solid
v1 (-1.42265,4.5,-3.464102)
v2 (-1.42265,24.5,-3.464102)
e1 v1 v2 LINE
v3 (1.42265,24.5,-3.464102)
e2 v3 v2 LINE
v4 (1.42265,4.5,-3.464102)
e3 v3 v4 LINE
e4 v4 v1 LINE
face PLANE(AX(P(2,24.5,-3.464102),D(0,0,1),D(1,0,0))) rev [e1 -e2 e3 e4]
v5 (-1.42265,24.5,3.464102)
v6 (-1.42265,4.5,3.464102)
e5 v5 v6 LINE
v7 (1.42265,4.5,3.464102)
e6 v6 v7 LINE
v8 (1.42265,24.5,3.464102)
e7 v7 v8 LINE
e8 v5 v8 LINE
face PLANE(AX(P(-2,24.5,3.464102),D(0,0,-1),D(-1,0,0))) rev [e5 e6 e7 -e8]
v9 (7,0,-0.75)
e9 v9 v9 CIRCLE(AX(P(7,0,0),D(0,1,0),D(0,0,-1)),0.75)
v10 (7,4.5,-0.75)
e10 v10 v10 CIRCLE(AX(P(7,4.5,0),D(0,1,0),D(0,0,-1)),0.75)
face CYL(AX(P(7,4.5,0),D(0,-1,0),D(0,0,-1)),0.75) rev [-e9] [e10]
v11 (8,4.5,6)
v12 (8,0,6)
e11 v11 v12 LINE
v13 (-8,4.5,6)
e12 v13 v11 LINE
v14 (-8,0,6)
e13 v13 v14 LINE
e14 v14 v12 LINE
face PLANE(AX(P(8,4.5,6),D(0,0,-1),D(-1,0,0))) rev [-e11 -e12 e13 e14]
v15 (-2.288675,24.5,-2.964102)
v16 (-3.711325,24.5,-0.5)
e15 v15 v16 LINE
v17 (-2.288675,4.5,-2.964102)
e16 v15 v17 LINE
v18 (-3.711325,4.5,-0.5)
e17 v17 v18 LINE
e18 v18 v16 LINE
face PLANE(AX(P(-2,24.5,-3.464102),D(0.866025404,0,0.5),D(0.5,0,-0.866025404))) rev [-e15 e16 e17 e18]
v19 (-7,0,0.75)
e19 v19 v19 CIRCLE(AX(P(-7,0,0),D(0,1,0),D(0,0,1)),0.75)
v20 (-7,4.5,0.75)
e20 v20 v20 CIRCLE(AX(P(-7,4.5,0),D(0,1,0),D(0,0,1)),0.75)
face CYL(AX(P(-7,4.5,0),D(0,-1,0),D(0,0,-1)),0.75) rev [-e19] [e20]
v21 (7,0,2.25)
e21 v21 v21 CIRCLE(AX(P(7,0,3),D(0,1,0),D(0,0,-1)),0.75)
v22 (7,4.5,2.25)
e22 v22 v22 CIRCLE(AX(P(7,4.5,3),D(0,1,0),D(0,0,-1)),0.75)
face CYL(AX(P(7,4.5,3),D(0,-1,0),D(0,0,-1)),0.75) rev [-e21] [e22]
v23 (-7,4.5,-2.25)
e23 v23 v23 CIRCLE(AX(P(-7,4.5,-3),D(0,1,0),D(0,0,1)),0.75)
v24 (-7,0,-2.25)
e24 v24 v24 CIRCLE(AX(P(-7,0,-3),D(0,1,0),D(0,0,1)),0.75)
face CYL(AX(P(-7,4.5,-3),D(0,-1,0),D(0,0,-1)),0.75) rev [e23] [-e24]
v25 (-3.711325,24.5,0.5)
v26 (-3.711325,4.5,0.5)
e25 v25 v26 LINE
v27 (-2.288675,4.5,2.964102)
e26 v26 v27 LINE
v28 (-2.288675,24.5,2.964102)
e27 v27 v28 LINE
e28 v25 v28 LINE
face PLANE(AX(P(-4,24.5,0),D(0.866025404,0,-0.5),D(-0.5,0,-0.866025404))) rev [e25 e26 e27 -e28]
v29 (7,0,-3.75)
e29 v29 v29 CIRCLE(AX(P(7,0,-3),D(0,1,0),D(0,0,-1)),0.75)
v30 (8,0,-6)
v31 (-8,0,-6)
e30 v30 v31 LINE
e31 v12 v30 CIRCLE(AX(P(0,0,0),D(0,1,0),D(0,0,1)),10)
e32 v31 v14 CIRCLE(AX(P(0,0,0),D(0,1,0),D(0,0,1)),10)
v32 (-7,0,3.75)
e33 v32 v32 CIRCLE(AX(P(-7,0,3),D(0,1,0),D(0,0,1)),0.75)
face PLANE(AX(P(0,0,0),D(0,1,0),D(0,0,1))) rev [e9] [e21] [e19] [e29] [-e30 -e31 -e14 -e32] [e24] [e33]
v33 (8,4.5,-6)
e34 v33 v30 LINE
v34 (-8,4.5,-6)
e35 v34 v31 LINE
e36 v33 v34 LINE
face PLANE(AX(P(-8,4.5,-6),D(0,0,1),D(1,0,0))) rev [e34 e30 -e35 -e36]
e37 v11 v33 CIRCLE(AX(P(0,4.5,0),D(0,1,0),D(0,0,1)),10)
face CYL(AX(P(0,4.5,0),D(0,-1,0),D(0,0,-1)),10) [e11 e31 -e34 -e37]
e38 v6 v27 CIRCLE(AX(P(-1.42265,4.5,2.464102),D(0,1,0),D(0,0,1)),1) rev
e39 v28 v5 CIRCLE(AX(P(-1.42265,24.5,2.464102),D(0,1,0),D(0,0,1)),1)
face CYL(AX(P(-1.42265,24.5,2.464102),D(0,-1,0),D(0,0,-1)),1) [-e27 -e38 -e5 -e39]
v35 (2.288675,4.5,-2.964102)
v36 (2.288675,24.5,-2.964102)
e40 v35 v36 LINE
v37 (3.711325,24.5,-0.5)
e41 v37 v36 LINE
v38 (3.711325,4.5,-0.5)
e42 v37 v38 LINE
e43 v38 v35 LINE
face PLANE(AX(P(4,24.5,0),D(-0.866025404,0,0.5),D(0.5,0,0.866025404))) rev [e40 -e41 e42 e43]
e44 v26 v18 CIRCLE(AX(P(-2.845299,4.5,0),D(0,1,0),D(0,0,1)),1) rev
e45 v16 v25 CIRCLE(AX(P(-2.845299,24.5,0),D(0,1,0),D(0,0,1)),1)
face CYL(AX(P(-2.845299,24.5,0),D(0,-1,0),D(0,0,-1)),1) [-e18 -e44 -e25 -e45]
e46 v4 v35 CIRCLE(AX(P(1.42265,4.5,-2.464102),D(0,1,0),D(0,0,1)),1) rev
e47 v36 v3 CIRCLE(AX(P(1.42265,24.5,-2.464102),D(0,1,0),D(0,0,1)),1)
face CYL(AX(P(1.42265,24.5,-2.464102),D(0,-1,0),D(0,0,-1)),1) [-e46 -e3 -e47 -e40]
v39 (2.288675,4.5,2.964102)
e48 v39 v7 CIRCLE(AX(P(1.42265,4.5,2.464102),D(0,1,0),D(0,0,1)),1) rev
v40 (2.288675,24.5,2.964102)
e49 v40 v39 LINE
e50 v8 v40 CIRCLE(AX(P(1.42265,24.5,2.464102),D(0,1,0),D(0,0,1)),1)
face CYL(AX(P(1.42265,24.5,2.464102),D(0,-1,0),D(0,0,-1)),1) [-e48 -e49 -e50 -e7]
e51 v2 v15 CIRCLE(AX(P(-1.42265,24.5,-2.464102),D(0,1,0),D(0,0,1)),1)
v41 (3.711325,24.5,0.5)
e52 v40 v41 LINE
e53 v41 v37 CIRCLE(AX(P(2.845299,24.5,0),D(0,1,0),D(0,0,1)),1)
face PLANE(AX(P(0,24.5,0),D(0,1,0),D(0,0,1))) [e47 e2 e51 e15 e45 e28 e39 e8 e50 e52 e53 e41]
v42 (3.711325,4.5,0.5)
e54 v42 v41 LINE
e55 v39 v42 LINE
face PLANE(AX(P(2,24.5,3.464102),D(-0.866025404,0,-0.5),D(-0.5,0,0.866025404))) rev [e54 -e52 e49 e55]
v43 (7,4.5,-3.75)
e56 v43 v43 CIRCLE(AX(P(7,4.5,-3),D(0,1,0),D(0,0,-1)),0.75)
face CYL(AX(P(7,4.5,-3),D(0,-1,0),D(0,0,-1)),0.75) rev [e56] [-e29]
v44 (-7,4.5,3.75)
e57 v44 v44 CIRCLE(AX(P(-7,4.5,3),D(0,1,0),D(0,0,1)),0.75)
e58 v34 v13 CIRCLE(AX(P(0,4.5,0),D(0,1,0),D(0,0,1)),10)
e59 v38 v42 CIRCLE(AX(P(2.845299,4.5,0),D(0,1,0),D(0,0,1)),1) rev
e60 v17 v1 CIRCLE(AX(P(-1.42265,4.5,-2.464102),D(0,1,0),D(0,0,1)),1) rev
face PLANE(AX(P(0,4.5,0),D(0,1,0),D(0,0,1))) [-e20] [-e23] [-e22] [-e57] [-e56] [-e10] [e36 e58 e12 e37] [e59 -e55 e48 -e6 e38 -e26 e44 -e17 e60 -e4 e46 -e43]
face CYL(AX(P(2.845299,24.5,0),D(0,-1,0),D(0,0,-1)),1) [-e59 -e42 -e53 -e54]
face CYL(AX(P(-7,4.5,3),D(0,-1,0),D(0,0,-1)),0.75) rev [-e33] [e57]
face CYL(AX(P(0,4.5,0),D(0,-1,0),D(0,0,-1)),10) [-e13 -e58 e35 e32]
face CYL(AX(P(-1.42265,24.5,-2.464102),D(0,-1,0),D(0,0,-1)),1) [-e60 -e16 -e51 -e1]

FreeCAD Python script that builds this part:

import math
import FreeCAD as App
import Part
import Sketcher

V = App.Vector
Q = App.Units.Quantity


def edges_at(feature, points):
    """Names of the edges that pass closest to the given points."""
    edges = feature.Shape.Edges
    near = lambda p: min(range(len(edges)), key=lambda i: edges[i].distToShape(Part.Vertex(*p))[0])
    return sorted({f"Edge{near(p) + 1}" for p in points})


def add_polygon(sketch, points):
    """Adds a closed chain of lines whose ends are joined by coincident constraints."""
    first, n = sketch.GeometryCount, len(points)
    for a, b in zip(points, points[1:] + points[:1]):
        sketch.addGeometry(Part.LineSegment(App.Vector(*a, 0), App.Vector(*b, 0)), False)
    for i in range(n):
        sketch.addConstraint(Sketcher.Constraint("Coincident", first + i, 2, first + (i + 1) % n, 1))

doc = App.newDocument("Part")
body = doc.addObject("PartDesign::Body", "Body")

# Sketch on XZ plane
sketch1 = doc.addObject("Sketcher::SketchObject", "Sketch")
body.addObject(sketch1)
sketch1.AttachmentSupport = (doc.XZ_Plane, [""])
sketch1.MapMode = "FlatFace"
sketch1.addGeometry([
    Part.LineSegment(V(8, -6, 0), V(-8, -6, 0)),  # 0
    Part.ArcOfCircle(Part.Circle(V(0, 0, 0), V(0, 0, 1), 10), math.radians(143), math.radians(217)),  # 1
    Part.LineSegment(V(-8, 6, 0), V(8, 6, 0)),  # 2
    Part.ArcOfCircle(Part.Circle(V(0, 0, 0), V(0, 0, 1), 10), math.radians(-37), math.radians(37)),  # 3
    Part.Circle(V(7, 3, 0), V(0, 0, 1), 0.8),  # 4
    Part.Circle(V(-7, 3, 0), V(0, 0, 1), 0.8),  # 5
    Part.Circle(V(7, 0, 0), V(0, 0, 1), 0.8),  # 6
    Part.Circle(V(7, -3, 0), V(0, 0, 1), 0.8),  # 7
    Part.Circle(V(-7, 0, 0), V(0, 0, 1), 0.8),  # 8
    Part.Circle(V(-7, -3, 0), V(0, 0, 1), 0.8),  # 9
], False)
sketch1.addConstraint([
    Sketcher.Constraint("Coincident", 0, 2, 1, 2),
    Sketcher.Constraint("Coincident", 1, 1, 2, 1),
    Sketcher.Constraint("Coincident", 2, 2, 3, 2),
    Sketcher.Constraint("Coincident", 3, 1, 0, 1),
    Sketcher.Constraint("Horizontal", 0),
    Sketcher.Constraint("Horizontal", 2),
    Sketcher.Constraint("Coincident", 1, 3, -1, 1),
    Sketcher.Constraint("Coincident", 3, 3, -1, 1),
    Sketcher.Constraint("Equal", 1, 3),
    Sketcher.Constraint("Equal", 4, 5),
    Sketcher.Constraint("Equal", 5, 6),
    Sketcher.Constraint("Equal", 6, 7),
    Sketcher.Constraint("Equal", 7, 8),
    Sketcher.Constraint("Equal", 8, 9),
    Sketcher.Constraint("Symmetric", 5, 3, 7, 3, -1, 1),
    Sketcher.Constraint("Symmetric", 6, 3, 8, 3, -1, 1),
    Sketcher.Constraint("Symmetric", 4, 3, 9, 3, -1, 1),
    Sketcher.Constraint("Symmetric", 4, 3, 5, 3, -2),
    Sketcher.Constraint("PointOnObject", 6, 3, -1),
    Sketcher.Constraint("Vertical", 4, 3, 6, 3),
    Sketcher.Constraint("Vertical", 0, 2, 1, 1),
    Sketcher.Constraint("Radius", 1, Q("10 mm")),
    Sketcher.Constraint("Diameter", 4, Q("1.5 mm")),
    Sketcher.Constraint("DistanceX", 0, 2, 0, 1, Q("16 mm")),
    Sketcher.Constraint("DistanceX", -1, 1, 4, 3, Q("7 mm")),
    Sketcher.Constraint("DistanceY", -1, 1, 4, 3, Q("3 mm")),
])
pad1 = doc.addObject("PartDesign::Pad", "Pad")
body.addObject(pad1)
pad1.Profile = sketch1
pad1.Length = 4.5
pad1.Reversed = True

# Sketch on XZ plane
sketch2 = doc.addObject("Sketcher::SketchObject", "Sketch001")
body.addObject(sketch2)
sketch2.AttachmentSupport = (doc.XZ_Plane, [""])
sketch2.MapMode = "FlatFace"
sketch2.AttachmentOffset = App.Placement(V(0, 0, -4.5), App.Rotation())
add_polygon(sketch2, [(2, -3.5), (-2, -3.5), (-4, 0), (-2, 3.5), (2, 3.5), (4, 0)])  # lines 0-5
sketch2.addConstraint([
    Sketcher.Constraint("Horizontal", 0),
    Sketcher.Constraint("Horizontal", 3),
    Sketcher.Constraint("Symmetric", 0, 2, 3, 2, -1, 1),
    Sketcher.Constraint("Symmetric", 1, 2, 4, 2, -1, 1),
    Sketcher.Constraint("PointOnObject", 1, 2, -1),
    Sketcher.Constraint("Parallel", 2, 5),
    Sketcher.Constraint("Vertical", 0, 2, 2, 2),
    Sketcher.Constraint("DistanceX", 0, 2, 0, 1, Q("4 mm")),
    Sketcher.Constraint("Angle", 1, Q("120 deg")),
    Sketcher.Constraint("Distance", 1, Q("4 mm")),
])
pad2 = doc.addObject("PartDesign::Pad", "Pad001")
body.addObject(pad2)
pad2.Profile = sketch2
pad2.Length = 20
pad2.Reversed = True
doc.recompute()

fillet = doc.addObject("PartDesign::Fillet", "Fillet")
body.addObject(fillet)
fillet.Base = (pad2, edges_at(pad2, [
    (4, 14.5, 0),
    (2, 14.5, -3.464),
    (-2, 14.5, -3.464),
    (-4, 14.5, 0),
    (-2, 14.5, 3.464),
    (2, 14.5, 3.464),
]))
fillet.Radius = 1

doc.recompute()
